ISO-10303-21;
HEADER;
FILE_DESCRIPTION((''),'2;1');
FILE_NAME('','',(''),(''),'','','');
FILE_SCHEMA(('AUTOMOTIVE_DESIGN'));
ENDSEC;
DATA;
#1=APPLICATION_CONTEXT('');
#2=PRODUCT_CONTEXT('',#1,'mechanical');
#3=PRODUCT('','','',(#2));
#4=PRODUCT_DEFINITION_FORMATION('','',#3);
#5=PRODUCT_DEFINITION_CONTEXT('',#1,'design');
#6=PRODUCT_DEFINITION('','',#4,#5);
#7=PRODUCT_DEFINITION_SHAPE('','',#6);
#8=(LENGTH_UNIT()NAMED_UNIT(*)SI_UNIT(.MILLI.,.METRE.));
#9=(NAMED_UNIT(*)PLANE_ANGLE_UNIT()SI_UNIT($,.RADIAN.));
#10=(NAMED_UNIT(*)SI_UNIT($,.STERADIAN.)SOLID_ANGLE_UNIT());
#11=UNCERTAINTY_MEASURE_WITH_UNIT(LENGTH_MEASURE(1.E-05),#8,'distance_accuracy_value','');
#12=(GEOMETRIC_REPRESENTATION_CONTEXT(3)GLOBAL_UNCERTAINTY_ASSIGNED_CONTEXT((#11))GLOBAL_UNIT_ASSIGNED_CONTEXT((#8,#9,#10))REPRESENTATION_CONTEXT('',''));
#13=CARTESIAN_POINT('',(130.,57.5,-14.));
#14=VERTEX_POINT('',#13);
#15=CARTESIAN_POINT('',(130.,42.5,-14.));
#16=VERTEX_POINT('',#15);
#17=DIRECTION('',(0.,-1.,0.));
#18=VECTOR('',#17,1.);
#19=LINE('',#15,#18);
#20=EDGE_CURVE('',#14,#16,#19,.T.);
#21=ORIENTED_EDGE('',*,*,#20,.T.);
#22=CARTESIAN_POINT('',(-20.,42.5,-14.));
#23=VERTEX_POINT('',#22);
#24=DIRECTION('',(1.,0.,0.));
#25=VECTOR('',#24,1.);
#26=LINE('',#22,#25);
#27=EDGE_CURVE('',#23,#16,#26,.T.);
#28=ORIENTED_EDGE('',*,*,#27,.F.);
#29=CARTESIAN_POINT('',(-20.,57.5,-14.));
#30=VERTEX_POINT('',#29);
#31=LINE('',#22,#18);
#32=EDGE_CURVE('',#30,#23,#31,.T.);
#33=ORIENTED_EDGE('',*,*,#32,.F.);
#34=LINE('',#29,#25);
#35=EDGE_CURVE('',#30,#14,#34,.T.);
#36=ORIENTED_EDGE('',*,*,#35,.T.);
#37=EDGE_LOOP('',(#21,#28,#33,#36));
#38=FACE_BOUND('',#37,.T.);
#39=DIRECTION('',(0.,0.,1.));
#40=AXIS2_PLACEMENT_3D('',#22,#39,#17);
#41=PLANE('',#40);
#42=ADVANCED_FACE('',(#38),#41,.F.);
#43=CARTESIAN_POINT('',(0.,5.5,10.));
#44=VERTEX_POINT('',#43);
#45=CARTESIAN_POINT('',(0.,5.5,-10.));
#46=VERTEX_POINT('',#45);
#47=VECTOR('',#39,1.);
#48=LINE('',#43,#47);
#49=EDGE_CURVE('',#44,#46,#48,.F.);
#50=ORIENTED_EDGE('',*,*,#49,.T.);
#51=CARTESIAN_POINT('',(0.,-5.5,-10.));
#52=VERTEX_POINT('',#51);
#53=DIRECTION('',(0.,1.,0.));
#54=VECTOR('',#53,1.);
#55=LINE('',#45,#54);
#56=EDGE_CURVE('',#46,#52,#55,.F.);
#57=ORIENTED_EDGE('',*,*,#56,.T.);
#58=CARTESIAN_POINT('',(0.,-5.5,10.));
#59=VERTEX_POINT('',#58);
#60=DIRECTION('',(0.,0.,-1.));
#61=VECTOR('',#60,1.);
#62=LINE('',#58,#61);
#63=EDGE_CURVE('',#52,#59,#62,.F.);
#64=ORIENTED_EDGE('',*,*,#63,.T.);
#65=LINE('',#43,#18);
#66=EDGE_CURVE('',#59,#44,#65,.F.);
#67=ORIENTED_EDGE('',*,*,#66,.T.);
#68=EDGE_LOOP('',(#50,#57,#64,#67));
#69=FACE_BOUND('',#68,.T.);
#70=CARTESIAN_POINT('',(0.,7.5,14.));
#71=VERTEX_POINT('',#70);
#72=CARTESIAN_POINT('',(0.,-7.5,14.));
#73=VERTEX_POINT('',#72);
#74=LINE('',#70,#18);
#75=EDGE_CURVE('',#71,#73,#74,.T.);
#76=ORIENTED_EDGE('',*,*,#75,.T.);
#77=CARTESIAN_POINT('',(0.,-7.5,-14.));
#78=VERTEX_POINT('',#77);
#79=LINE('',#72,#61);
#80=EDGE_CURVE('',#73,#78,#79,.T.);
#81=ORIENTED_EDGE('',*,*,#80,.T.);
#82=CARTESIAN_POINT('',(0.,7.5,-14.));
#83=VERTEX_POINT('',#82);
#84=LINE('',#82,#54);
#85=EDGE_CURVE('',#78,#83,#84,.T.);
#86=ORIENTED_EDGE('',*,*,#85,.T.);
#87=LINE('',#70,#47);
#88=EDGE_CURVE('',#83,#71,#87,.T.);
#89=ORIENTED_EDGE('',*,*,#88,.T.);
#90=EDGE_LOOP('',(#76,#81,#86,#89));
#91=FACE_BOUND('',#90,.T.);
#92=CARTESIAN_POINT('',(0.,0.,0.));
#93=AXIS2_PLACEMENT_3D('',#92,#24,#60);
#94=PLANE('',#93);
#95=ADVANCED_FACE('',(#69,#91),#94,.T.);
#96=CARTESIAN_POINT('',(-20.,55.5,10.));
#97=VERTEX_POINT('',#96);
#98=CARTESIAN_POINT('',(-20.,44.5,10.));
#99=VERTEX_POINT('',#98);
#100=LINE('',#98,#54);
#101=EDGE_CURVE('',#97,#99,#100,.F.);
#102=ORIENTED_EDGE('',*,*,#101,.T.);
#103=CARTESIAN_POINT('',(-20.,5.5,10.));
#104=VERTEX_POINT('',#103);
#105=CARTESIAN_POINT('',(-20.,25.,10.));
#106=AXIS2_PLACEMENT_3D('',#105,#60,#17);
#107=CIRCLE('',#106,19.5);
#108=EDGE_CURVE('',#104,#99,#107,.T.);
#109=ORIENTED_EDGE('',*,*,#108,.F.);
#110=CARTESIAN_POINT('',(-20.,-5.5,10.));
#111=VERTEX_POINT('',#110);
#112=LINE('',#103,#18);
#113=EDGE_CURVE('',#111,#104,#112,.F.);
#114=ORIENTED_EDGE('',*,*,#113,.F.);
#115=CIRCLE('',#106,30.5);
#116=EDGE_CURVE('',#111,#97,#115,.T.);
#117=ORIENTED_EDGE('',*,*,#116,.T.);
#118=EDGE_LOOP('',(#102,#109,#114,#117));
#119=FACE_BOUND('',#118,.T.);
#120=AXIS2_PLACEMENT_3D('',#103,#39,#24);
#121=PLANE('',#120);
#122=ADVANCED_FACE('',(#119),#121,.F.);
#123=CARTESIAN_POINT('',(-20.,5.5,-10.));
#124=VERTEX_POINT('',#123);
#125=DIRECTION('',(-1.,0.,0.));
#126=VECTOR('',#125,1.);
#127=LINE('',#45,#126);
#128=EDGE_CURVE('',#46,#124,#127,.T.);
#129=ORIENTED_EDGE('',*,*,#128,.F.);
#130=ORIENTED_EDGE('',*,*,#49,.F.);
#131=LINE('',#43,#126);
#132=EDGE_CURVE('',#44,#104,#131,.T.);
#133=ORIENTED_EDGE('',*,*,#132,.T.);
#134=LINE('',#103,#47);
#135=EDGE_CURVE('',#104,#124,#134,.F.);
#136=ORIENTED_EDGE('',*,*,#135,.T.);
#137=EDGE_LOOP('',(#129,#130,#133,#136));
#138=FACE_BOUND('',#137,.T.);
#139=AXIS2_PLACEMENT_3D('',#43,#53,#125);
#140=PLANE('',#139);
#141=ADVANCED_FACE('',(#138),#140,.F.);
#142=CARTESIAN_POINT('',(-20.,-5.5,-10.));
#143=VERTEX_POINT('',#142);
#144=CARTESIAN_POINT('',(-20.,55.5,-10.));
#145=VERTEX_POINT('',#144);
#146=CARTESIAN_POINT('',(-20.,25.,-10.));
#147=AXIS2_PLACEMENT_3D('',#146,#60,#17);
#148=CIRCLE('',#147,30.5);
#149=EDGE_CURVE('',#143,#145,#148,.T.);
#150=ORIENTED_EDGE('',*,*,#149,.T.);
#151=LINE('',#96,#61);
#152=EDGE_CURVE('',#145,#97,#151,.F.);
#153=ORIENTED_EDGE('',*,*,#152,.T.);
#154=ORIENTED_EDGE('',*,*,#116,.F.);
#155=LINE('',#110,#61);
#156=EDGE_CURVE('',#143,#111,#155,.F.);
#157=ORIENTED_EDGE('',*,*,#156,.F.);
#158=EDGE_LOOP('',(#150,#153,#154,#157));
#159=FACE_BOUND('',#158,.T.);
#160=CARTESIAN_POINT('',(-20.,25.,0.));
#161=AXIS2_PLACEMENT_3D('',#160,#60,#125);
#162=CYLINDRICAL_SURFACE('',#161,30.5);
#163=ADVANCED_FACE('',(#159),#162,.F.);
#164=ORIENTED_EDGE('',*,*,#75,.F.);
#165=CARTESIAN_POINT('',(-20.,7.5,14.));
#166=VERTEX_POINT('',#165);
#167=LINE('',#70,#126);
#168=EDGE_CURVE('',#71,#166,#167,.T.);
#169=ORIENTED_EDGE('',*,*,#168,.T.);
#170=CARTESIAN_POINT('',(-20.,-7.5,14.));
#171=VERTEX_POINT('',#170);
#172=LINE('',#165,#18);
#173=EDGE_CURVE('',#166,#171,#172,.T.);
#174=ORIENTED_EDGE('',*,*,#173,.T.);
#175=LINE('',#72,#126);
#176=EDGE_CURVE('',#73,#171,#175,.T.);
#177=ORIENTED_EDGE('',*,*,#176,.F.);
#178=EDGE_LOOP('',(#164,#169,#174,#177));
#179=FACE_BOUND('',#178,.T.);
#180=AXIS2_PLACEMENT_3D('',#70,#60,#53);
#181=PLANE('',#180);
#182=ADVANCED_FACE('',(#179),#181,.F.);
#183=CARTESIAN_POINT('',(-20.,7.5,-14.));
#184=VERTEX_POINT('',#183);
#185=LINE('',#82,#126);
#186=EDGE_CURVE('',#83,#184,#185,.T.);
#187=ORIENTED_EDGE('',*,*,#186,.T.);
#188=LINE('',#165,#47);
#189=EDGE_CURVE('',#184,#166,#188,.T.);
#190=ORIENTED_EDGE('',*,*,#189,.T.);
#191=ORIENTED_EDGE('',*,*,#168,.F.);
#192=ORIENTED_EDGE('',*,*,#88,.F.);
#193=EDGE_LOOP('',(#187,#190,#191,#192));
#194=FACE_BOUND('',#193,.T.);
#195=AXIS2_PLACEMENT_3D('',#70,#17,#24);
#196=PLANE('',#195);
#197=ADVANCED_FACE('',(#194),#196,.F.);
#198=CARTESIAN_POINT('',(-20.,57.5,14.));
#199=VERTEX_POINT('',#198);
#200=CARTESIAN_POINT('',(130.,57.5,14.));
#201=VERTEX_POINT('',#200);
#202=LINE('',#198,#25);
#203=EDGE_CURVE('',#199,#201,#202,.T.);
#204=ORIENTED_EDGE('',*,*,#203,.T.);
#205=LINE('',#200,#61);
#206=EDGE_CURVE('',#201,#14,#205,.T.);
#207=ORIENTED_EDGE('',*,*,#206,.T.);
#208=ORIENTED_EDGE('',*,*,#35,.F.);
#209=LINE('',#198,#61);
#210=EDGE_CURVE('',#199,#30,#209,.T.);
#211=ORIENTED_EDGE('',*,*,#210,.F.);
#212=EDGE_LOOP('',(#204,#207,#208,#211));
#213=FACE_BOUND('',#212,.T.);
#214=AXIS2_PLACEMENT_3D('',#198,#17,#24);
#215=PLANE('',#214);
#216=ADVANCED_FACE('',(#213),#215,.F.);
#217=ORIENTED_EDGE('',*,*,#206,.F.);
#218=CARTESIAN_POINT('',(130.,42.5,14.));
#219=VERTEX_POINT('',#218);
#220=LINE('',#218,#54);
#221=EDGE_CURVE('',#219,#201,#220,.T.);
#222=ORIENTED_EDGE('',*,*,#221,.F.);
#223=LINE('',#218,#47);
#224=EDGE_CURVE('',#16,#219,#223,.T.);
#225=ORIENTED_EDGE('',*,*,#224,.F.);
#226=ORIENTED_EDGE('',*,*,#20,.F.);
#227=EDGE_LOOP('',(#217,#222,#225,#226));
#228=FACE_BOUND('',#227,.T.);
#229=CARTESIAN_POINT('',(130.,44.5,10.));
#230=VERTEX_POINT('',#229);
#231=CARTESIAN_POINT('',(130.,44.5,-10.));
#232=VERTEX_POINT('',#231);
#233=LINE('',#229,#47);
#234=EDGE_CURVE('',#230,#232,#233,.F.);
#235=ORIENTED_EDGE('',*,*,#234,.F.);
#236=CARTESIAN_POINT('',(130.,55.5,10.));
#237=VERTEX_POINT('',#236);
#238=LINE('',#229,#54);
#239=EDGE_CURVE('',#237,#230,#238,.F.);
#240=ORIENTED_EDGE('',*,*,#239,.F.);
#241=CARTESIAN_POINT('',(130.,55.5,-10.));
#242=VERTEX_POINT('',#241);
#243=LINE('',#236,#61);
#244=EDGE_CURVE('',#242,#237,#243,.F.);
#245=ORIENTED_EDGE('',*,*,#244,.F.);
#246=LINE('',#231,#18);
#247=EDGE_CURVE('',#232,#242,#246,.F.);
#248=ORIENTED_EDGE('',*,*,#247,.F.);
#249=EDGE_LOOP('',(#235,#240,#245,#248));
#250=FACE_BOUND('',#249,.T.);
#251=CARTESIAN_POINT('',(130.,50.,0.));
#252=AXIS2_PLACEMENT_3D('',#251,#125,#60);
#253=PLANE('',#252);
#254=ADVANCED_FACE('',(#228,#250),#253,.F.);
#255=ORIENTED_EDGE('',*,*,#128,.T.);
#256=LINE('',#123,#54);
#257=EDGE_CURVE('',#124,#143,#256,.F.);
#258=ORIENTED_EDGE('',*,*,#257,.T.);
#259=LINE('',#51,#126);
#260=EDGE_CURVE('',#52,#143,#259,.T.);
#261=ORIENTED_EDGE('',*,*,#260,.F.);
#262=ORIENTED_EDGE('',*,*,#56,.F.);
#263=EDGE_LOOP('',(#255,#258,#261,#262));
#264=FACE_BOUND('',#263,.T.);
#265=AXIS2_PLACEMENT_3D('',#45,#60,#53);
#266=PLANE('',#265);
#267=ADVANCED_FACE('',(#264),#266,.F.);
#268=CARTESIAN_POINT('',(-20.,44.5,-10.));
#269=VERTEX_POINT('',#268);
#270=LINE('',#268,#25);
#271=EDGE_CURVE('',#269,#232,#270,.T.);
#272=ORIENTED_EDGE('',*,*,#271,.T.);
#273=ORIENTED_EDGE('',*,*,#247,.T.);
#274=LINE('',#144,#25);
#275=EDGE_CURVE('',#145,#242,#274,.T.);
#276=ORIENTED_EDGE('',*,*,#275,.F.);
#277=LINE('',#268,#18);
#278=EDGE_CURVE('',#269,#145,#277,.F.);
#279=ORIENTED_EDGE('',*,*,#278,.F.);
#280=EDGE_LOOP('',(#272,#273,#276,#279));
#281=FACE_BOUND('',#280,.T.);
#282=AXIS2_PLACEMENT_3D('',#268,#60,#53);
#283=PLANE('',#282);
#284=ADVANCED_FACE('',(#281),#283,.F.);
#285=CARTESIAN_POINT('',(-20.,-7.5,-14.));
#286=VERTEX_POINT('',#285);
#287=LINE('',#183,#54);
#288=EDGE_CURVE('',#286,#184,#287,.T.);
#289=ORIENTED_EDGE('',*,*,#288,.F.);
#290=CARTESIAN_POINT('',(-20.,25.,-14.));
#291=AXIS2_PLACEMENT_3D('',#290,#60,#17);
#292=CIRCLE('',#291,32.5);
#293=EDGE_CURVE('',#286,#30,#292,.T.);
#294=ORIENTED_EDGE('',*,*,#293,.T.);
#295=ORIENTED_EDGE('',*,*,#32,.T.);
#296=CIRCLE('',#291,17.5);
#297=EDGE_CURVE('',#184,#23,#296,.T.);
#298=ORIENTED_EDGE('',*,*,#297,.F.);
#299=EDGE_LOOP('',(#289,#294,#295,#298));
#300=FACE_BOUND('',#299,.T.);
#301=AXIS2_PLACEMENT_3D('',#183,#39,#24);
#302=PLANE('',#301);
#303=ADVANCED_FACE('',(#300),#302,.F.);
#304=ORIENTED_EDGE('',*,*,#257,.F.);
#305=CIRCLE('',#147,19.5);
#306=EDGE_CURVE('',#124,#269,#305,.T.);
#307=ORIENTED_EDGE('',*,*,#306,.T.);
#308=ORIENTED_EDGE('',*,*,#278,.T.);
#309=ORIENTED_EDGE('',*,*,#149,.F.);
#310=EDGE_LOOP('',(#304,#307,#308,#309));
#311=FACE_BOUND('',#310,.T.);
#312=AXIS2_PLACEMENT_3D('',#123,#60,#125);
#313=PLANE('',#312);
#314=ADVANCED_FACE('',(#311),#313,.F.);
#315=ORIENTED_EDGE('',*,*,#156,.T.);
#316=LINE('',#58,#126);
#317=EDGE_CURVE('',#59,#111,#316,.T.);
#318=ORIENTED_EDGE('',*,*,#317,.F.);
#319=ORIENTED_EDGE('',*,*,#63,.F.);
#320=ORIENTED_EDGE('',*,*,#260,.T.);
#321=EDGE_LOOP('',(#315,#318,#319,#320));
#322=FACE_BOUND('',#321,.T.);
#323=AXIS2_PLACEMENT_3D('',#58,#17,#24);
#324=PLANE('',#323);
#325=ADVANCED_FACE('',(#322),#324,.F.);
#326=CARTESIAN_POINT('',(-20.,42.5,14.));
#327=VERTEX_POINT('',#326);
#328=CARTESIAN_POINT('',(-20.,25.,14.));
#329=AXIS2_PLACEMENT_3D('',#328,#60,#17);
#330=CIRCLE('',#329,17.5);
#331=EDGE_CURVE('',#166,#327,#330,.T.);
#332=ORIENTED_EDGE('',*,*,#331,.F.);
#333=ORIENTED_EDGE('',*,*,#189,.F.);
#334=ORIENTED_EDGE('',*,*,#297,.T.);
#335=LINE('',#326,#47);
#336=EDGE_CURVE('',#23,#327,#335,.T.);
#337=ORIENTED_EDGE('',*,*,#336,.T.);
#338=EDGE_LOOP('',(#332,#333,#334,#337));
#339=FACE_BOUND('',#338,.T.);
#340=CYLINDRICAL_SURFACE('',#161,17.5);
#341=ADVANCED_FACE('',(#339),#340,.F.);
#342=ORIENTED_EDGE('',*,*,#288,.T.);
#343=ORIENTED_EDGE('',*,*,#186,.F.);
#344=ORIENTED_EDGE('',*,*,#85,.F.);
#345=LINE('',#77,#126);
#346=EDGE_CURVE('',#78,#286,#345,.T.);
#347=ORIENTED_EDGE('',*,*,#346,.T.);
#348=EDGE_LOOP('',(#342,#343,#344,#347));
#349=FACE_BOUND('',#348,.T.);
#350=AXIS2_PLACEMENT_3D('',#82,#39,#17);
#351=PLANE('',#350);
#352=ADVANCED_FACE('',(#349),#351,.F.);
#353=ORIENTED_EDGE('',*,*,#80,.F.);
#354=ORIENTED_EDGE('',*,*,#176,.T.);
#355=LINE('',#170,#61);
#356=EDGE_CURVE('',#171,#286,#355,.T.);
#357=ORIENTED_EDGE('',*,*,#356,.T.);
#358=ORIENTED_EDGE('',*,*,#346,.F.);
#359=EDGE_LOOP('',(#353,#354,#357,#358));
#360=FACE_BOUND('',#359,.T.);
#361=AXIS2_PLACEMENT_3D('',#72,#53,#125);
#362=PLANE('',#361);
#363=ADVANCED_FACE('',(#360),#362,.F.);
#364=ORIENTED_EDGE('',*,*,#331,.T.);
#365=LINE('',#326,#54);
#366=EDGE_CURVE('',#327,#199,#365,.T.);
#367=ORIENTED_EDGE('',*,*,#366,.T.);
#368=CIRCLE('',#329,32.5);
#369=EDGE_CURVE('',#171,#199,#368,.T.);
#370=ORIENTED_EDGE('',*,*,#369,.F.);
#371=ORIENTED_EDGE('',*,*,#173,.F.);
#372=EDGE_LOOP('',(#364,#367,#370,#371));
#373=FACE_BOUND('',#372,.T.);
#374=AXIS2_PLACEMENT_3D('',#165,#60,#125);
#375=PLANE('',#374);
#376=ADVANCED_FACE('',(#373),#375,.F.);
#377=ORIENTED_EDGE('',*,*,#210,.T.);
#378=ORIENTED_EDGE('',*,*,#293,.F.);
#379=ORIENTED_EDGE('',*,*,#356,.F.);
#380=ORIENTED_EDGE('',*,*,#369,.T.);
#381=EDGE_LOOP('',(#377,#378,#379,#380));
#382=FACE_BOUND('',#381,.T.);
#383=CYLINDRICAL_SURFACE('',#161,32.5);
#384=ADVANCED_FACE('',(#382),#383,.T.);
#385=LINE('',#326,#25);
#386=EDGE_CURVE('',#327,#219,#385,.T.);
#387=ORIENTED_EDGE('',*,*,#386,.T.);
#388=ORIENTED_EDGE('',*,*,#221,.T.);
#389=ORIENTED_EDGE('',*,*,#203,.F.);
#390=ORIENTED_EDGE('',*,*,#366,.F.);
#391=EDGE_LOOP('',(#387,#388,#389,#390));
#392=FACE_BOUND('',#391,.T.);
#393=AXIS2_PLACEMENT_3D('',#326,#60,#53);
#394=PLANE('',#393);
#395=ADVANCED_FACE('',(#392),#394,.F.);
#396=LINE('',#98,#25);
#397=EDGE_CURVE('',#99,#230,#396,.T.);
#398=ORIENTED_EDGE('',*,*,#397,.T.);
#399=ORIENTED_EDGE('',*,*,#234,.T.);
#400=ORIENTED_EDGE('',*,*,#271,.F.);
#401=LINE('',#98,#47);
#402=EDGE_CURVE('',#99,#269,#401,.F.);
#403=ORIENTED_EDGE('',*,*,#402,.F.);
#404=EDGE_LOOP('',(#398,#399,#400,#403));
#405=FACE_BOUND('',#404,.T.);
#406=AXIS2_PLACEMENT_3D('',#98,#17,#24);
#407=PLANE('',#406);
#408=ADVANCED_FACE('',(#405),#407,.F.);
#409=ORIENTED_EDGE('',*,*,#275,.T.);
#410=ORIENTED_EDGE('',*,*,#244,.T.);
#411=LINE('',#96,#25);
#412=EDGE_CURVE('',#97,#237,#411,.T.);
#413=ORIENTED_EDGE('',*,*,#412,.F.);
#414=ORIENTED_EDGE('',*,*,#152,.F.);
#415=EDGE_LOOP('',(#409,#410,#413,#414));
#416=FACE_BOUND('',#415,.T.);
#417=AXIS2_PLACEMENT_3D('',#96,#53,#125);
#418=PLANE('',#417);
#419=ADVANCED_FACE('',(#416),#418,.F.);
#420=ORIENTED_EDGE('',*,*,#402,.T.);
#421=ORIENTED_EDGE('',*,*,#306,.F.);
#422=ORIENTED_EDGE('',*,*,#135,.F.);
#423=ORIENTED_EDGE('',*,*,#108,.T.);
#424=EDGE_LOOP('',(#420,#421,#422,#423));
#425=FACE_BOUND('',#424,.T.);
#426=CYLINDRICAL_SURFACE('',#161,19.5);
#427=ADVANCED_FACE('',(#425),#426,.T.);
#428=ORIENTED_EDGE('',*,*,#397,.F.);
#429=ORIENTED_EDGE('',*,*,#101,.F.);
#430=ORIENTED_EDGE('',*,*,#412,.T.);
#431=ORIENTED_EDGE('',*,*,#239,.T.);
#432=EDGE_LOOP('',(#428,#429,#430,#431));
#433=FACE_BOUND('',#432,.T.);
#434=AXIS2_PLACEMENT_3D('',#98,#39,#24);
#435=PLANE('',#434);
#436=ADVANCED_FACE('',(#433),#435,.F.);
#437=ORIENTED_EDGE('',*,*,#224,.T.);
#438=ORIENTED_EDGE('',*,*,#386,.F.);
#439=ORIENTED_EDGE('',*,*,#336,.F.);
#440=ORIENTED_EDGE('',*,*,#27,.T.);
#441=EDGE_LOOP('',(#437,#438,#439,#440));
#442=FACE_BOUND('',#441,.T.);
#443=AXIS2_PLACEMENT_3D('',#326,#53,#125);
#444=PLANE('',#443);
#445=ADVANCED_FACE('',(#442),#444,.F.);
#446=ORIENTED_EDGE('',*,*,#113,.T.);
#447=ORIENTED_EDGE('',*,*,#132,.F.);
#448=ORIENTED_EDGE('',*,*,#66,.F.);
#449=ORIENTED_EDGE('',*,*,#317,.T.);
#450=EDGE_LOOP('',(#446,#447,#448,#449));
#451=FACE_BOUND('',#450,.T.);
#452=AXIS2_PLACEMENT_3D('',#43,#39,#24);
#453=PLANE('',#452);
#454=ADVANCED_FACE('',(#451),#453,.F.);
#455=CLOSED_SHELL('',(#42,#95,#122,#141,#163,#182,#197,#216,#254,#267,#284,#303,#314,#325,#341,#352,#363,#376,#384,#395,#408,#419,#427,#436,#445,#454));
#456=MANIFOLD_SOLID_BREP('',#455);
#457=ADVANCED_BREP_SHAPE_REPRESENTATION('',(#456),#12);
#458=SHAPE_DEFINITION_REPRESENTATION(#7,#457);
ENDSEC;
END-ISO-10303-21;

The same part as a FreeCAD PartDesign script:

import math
import FreeCAD as App
import Part
import Sketcher

V = App.Vector


def add_polygon(sketch, points):
    """Adds a closed chain of lines whose ends are joined by coincident constraints."""
    first, n = sketch.GeometryCount, len(points)
    for a, b in zip(points, points[1:] + points[:1]):
        sketch.addGeometry(Part.LineSegment(App.Vector(*a, 0), App.Vector(*b, 0)), False)
    for i in range(n):
        sketch.addConstraint(Sketcher.Constraint("Coincident", first + i, 2, first + (i + 1) % n, 1))

doc = App.newDocument("Part")
body = doc.addObject("PartDesign::Body", "Body")

# Sketch on YZ plane
sketch1 = doc.addObject("Sketcher::SketchObject", "Sketch")
body.addObject(sketch1)
sketch1.AttachmentSupport = (doc.YZ_Plane, [""])
sketch1.MapMode = "FlatFace"
add_polygon(sketch1, [(7.5, 14), (-7.5, 14), (-7.5, -14), (7.5, -14)])  # lines 0-3
add_polygon(sketch1, [(-5.5, -10), (-5.5, 10), (5.5, 10), (5.5, -10)])  # lines 4-7
sketch1.addConstraint([
    Sketcher.Constraint("Horizontal", 0),
    Sketcher.Constraint("Vertical", 1),
    Sketcher.Constraint("Horizontal", 2),
    Sketcher.Constraint("Vertical", 3),
    Sketcher.Constraint("Vertical", 4),
    Sketcher.Constraint("Horizontal", 5),
    Sketcher.Constraint("Vertical", 6),
    Sketcher.Constraint("Horizontal", 7),
    Sketcher.Constraint("Symmetric", 0, 2, 2, 2, -1, 1),
    Sketcher.Constraint("Symmetric", 4, 2, 6, 2, -1, 1),
    Sketcher.Constraint("DistanceX", 0, 2, 0, 1, 15.0),
    Sketcher.Constraint("DistanceX", 5, 1, 5, 2, 11.0),
    Sketcher.Constraint("DistanceY", 1, 2, 1, 1, 28.0),
    Sketcher.Constraint("DistanceY", 4, 1, 4, 2, 20.0),
])

# Sketch on XY plane
sketch2 = doc.addObject("Sketcher::SketchObject", "Sketch001")
body.addObject(sketch2)
sketch2.AttachmentSupport = (doc.XY_Plane, [""])
sketch2.MapMode = "FlatFace"
sketch2.addGeometry([
    Part.LineSegment(V(0, 0, 0), V(-20, 0, 0)),
    Part.ArcOfCircle(Part.Circle(V(-20, 25, 0), V(0, 0, 1), 25), math.radians(90), math.radians(270)),
    Part.LineSegment(V(-20, 50, 0), V(130, 50, 0)),
], False)
sketch2.addConstraint([
    Sketcher.Constraint("Tangent", 0, 2, 1, 2),
    Sketcher.Constraint("Tangent", 1, 1, 2, 1),
    Sketcher.Constraint("Horizontal", 0),
    Sketcher.Constraint("Horizontal", 2),
    Sketcher.Constraint("Coincident", 0, 1, -1, 1),
    Sketcher.Constraint("Radius", 1, 25.0),
    Sketcher.Constraint("DistanceX", 0, 2, 0, 1, 20.0),
    Sketcher.Constraint("DistanceX", 2, 1, 2, 2, 150.0),
])
doc.recompute()

additivepipe = doc.addObject("PartDesign::AdditivePipe", "AdditivePipe")
body.addObject(additivepipe)
additivepipe.Profile = sketch1
additivepipe.Spine = (sketch2, ["Edge1", "Edge2", "Edge3"])

doc.recompute()
